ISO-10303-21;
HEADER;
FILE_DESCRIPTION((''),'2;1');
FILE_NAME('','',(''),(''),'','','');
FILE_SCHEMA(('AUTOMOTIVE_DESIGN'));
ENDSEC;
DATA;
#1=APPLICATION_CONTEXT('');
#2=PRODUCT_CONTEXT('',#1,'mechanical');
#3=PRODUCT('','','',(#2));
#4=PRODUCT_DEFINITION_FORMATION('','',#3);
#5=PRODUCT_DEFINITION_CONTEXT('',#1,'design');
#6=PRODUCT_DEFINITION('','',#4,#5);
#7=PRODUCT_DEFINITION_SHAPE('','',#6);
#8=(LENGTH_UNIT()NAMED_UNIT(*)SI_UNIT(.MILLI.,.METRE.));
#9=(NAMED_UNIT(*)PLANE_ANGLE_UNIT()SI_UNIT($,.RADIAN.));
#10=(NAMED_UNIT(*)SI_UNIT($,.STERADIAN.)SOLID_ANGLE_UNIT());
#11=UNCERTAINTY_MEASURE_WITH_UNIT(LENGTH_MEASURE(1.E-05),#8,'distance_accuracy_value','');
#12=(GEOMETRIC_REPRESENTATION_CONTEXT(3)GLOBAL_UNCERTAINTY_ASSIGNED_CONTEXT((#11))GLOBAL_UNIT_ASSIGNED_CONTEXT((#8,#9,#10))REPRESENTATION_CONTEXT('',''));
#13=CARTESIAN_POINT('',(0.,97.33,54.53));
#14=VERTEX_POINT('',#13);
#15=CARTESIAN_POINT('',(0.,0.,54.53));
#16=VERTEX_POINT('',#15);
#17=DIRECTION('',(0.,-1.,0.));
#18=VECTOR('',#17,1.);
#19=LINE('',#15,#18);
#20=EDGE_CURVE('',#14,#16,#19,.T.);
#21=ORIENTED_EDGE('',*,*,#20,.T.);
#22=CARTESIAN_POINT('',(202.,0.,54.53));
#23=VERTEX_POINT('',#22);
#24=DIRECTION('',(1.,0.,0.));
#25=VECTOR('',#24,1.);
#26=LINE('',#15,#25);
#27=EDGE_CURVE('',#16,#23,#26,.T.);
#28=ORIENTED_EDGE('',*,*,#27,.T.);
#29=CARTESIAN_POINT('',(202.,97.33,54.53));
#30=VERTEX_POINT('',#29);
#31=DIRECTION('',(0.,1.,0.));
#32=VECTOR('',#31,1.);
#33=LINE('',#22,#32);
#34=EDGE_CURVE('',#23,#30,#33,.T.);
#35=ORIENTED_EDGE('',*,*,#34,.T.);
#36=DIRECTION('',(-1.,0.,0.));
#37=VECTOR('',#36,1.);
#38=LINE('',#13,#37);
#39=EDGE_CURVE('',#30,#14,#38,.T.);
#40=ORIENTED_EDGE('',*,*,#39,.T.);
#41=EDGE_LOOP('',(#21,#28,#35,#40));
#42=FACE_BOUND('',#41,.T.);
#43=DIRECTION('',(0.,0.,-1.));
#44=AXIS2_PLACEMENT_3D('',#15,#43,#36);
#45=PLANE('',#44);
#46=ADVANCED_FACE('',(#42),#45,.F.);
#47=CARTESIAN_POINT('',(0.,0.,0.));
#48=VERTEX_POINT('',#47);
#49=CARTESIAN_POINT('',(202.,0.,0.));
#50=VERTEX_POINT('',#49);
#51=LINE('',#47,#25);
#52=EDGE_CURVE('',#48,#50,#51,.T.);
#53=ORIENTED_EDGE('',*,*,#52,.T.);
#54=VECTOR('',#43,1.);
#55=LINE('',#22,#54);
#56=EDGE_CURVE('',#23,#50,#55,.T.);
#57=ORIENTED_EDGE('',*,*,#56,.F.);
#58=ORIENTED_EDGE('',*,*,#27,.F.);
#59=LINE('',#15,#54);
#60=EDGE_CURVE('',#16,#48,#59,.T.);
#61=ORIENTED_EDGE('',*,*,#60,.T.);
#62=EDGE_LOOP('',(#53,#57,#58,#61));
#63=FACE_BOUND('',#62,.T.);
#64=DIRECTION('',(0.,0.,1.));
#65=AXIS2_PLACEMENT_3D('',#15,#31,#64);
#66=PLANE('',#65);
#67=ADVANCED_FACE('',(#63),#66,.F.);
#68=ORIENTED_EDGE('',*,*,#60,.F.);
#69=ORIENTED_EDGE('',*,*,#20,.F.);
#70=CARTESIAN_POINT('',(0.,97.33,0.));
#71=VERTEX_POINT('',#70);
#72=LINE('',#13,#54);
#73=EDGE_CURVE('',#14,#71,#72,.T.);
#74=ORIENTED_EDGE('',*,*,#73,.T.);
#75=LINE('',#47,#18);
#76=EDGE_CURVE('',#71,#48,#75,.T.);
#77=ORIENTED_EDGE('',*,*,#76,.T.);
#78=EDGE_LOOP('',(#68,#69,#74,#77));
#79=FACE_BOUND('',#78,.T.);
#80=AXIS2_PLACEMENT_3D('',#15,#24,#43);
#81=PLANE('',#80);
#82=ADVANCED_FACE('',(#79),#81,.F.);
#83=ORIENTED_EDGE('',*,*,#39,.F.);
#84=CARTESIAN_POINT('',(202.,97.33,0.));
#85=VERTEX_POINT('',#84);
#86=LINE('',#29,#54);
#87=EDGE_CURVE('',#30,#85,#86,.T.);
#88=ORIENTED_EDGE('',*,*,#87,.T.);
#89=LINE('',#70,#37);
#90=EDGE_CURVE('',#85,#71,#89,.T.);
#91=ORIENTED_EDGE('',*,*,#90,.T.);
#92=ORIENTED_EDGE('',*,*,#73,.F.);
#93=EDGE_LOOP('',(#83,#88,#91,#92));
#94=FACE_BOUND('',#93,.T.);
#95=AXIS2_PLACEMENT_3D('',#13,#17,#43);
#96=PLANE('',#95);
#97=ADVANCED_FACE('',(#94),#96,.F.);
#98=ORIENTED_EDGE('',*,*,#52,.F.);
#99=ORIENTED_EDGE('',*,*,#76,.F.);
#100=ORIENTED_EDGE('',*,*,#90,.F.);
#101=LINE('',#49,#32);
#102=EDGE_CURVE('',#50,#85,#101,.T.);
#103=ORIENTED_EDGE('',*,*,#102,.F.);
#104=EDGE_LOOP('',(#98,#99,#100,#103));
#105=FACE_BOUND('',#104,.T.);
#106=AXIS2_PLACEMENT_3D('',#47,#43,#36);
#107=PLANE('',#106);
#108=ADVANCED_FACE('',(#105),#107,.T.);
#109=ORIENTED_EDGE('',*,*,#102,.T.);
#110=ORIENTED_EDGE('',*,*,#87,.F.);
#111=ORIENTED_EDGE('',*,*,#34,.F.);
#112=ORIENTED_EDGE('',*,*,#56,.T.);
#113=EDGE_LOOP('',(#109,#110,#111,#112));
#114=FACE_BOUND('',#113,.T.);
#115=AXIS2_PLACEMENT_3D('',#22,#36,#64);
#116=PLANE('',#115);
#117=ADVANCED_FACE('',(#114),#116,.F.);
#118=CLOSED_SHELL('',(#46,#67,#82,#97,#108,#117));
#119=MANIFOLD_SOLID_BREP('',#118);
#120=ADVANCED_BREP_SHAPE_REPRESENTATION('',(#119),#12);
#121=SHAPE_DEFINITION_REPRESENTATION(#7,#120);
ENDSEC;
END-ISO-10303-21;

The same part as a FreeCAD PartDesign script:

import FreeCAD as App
import Part
import Sketcher
from FreeCAD import Vector
Q = App.Units.Quantity

doc = App.newDocument("Part")
body = doc.addObject("PartDesign::Body", "Body")

# Sketch on XY plane
sketch1 = body.newObject("Sketcher::SketchObject", "Sketch")
sketch1.AttachmentSupport = (doc.getObject("XY_Plane"), [""])
sketch1.MapMode = "FlatFace"
sketch1.addGeometry(Part.LineSegment(Vector(0, 97, 0), Vector(0, 0, 0)), False)
sketch1.addGeometry(Part.LineSegment(Vector(0, 0, 0), Vector(202, 0, 0)), False)
sketch1.addGeometry(Part.LineSegment(Vector(202, 0, 0), Vector(202, 97, 0)), False)
sketch1.addGeometry(Part.LineSegment(Vector(202, 97, 0), Vector(0, 97, 0)), False)
sketch1.addConstraint(Sketcher.Constraint("Coincident", 0, 2, 1, 1))
sketch1.addConstraint(Sketcher.Constraint("Coincident", 1, 2, 2, 1))
sketch1.addConstraint(Sketcher.Constraint("Coincident", 2, 2, 3, 1))
sketch1.addConstraint(Sketcher.Constraint("Coincident", 3, 2, 0, 1))
sketch1.addConstraint(Sketcher.Constraint("Vertical", 0))
sketch1.addConstraint(Sketcher.Constraint("Horizontal", 1))
sketch1.addConstraint(Sketcher.Constraint("Vertical", 2))
sketch1.addConstraint(Sketcher.Constraint("Horizontal", 3))
sketch1.addConstraint(Sketcher.Constraint("Coincident", 0, 2, -1, 1))
sketch1.addConstraint(Sketcher.Constraint("DistanceX", 1, 1, 1, 2, Q("202 mm")))
sketch1.addConstraint(Sketcher.Constraint("DistanceY", 0, 2, 0, 1, Q("97.33 mm")))
pad1 = body.newObject("PartDesign::Pad", "Pad")
pad1.Profile = sketch1
pad1.Length = 54.53

doc.recompute()
